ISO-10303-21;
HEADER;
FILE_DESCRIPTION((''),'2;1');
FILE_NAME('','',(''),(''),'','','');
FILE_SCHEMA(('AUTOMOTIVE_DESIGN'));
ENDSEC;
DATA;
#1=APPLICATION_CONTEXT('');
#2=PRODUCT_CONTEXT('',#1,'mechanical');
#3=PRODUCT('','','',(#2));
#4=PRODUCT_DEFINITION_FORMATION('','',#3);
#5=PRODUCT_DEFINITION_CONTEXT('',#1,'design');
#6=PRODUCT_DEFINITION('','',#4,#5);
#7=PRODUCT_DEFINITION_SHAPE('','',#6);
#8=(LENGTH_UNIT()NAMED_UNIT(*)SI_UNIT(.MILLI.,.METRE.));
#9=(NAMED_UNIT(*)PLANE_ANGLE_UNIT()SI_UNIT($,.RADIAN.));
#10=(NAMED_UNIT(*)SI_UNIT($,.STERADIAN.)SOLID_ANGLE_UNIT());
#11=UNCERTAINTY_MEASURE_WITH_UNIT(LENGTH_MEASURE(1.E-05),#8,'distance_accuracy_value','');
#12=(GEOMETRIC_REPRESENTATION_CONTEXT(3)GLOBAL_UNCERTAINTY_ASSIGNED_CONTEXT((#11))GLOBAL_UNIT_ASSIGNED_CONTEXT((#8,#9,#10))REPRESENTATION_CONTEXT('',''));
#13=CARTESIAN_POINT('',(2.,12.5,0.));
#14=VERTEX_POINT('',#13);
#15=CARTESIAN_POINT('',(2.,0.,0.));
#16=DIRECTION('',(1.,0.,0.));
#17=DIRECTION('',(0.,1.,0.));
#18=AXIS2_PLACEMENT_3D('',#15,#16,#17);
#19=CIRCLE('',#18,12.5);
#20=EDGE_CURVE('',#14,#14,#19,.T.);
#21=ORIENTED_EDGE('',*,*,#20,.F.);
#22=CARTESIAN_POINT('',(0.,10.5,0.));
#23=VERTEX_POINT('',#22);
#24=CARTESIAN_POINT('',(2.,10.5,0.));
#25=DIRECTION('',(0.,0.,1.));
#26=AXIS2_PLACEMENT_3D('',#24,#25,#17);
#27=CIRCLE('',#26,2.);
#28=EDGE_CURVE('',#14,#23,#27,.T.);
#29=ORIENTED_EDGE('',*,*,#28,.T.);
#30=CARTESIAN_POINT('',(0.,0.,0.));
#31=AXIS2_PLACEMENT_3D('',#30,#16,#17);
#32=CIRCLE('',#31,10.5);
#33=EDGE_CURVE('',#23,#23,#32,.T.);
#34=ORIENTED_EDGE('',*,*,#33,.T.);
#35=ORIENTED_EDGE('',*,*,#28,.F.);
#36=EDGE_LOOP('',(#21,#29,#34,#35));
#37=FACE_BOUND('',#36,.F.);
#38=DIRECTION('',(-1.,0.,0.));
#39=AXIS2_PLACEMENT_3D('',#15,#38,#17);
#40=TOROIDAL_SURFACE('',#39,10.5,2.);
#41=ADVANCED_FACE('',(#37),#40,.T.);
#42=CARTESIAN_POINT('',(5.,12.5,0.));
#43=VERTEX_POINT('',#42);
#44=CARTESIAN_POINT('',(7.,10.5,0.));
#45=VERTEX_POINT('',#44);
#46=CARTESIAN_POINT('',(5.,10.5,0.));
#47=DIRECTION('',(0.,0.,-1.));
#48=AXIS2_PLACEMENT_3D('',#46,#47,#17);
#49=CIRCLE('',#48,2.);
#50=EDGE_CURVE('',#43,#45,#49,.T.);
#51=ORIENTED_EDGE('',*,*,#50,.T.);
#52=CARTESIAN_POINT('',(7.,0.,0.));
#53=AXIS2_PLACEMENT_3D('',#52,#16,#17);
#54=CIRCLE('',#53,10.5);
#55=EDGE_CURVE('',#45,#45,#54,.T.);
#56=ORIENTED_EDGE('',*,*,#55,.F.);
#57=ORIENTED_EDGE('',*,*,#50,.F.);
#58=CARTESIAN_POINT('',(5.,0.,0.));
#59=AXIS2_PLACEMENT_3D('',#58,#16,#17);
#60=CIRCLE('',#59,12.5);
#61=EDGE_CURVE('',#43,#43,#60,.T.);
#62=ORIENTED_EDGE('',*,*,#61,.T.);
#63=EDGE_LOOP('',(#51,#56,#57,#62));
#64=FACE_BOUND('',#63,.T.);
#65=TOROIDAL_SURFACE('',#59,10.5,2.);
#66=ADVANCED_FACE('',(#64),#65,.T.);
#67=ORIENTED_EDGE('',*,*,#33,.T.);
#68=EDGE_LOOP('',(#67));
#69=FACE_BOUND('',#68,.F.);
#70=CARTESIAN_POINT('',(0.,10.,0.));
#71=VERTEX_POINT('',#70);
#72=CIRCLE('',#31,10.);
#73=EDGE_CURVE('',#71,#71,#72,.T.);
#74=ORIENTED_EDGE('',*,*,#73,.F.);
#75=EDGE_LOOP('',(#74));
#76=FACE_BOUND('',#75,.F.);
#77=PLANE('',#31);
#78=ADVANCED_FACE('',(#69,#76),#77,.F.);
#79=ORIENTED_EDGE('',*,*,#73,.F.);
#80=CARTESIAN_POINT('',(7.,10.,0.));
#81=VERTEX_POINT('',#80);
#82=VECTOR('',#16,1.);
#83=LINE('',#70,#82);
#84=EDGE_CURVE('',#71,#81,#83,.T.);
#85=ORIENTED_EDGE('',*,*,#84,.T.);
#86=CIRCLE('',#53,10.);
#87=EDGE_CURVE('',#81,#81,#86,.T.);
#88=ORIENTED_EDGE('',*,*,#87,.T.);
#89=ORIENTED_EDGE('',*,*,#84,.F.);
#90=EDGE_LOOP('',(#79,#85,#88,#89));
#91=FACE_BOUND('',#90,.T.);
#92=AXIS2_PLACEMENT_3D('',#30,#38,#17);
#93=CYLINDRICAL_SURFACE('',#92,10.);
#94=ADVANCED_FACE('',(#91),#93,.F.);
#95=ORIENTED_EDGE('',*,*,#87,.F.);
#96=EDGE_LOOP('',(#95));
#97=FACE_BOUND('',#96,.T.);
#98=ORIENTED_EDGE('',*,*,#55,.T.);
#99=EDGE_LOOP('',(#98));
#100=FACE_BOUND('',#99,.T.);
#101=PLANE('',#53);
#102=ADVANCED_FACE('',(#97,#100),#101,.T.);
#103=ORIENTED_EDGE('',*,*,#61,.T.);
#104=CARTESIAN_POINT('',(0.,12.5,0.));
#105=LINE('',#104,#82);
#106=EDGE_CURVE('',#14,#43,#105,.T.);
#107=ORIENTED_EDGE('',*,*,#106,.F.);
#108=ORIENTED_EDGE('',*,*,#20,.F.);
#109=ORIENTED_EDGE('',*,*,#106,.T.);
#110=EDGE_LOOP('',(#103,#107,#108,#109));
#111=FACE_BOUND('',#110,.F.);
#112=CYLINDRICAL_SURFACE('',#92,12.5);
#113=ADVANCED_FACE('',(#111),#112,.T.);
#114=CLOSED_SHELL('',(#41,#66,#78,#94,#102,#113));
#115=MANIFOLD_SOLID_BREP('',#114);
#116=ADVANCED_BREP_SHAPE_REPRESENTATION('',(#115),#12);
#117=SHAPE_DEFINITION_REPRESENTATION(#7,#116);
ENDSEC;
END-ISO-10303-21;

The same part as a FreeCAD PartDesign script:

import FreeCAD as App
import Part
import Sketcher

V = App.Vector
Q = App.Units.Quantity


def edges_at(feature, points):
    """Names of the edges that pass closest to the given points."""
    edges = feature.Shape.Edges
    near = lambda p: min(range(len(edges)), key=lambda i: edges[i].distToShape(Part.Vertex(*p))[0])
    return sorted({f"Edge{near(p) + 1}" for p in points})

doc = App.newDocument("Part")
params = doc.addObject("Spreadsheet::Sheet", "Params")
for row, (alias, value) in enumerate([
    ("sketch1_diameter", "25 mm"),
    ("sketch1_diameter2", "20 mm"),
    ("pad1_length", "7 mm"),
    ("fillet_radius", "2 mm"),
], start=1):
    params.set(f"A{row}", alias)
    params.set(f"B{row}", "=" + value)
    params.setAlias(f"B{row}", alias)

body = doc.addObject("PartDesign::Body", "Body")

# Sketch on YZ plane
sketch1 = doc.addObject("Sketcher::SketchObject", "Sketch")
body.addObject(sketch1)
sketch1.AttachmentSupport = (doc.YZ_Plane, [""])
sketch1.MapMode = "FlatFace"
sketch1.addGeometry([
    Part.Circle(V(0, 0, 0), V(0, 0, 1), 12.5),
    Part.Circle(V(0, 0, 0), V(0, 0, 1), 10),
], False)
sketch1.addConstraint([
    Sketcher.Constraint("Coincident", 0, 3, -1, 1),
    Sketcher.Constraint("Coincident", 1, 3, -1, 1),
    Sketcher.Constraint("Diameter", 0, Q("25 mm")),
    Sketcher.Constraint("Diameter", 1, Q("20 mm")),
])
sketch1.setExpression("Constraints[2]", "Params.sketch1_diameter")
sketch1.setExpression("Constraints[3]", "Params.sketch1_diameter2")
pad1 = doc.addObject("PartDesign::Pad", "Pad")
body.addObject(pad1)
pad1.Profile = sketch1
pad1.setExpression("Length", "Params.pad1_length")
doc.recompute()

fillet = doc.addObject("PartDesign::Fillet", "Fillet")
body.addObject(fillet)
fillet.Base = (pad1, edges_at(pad1, [(3.5, 12.5, 0), (0, -12.5, 0), (7, -12.5, 0)]))
fillet.setExpression("Radius", "Params.fillet_radius")

doc.recompute()
